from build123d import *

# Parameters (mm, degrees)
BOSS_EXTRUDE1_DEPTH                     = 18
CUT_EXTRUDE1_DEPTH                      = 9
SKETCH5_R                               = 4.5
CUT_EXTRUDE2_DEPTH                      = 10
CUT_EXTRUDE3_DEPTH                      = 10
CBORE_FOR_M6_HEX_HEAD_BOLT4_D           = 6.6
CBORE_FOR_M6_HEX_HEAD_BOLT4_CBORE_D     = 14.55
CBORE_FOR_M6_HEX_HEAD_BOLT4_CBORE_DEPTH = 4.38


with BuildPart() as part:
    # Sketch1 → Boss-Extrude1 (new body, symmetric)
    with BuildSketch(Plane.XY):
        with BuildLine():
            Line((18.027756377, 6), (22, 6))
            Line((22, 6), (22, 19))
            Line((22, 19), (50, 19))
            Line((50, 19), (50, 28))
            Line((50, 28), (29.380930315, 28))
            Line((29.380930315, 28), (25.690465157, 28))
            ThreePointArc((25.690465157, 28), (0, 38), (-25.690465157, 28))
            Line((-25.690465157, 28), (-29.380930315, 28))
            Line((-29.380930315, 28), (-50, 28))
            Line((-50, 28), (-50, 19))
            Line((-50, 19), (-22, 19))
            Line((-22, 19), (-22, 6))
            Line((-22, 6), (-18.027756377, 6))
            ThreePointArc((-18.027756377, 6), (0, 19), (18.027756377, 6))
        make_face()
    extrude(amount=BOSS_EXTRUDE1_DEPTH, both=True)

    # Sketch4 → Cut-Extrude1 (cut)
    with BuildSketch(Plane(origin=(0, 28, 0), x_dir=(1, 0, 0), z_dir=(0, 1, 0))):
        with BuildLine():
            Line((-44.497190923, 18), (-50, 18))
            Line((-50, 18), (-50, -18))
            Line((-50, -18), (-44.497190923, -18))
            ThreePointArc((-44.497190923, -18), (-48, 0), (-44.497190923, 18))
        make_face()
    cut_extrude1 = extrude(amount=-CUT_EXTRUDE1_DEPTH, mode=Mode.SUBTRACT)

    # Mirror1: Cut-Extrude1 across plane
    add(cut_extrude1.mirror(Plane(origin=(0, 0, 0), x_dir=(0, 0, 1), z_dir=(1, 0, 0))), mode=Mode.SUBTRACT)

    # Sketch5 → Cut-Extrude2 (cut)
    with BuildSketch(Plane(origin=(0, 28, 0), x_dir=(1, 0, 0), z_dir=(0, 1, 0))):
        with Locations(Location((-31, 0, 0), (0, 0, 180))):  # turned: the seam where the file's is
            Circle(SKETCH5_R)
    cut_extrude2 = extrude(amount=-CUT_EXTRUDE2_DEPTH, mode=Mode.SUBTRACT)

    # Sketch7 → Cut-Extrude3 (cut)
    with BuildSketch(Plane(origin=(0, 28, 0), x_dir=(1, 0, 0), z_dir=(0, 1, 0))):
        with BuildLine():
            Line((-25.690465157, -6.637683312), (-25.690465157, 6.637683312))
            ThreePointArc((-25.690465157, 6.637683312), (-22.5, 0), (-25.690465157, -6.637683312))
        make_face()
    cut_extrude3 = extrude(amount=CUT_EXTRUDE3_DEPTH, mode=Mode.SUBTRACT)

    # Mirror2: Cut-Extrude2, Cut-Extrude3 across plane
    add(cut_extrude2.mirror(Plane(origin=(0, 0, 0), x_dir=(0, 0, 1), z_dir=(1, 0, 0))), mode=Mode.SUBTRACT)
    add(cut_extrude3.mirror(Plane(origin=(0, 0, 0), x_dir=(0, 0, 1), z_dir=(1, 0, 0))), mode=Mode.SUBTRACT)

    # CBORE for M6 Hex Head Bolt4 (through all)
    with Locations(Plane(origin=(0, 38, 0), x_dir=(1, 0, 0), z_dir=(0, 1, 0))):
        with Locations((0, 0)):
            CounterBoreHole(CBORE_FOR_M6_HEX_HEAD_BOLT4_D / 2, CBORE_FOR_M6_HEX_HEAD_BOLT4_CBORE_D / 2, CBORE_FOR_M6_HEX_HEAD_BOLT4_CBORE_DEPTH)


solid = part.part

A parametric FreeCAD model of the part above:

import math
import FreeCAD as App
import Part
import Sketcher

V = App.Vector
Q = App.Units.Quantity

doc = App.newDocument("Part")
body = doc.addObject("PartDesign::Body", "Body")

sketch1 = body.newObject("Sketcher::SketchObject", "Sketch")
sketch1.AttachmentSupport = (doc.getObject("XY_Plane"), [""])
sketch1.MapMode = "FlatFace"
sketch1.addGeometry([
    Part.LineSegment(V(18, 6, 0), V(22, 6, 0)),
    Part.LineSegment(V(22, 6, 0), V(22, 19, 0)),
    Part.LineSegment(V(22, 19, 0), V(50, 19, 0)),
    Part.LineSegment(V(50, 19, 0), V(50, 28, 0)),
    Part.LineSegment(V(50, 28, 0), V(25.7, 28, 0)),
    Part.ArcOfCircle(Part.Circle(V(0, 0, 0), V(0, 0, 1), 38), math.radians(47), math.radians(133)),
    Part.LineSegment(V(-25.7, 28, 0), V(-50, 28, 0)),
    Part.LineSegment(V(-50, 28, 0), V(-50, 19, 0)),
    Part.LineSegment(V(-50, 19, 0), V(-22, 19, 0)),
    Part.LineSegment(V(-22, 19, 0), V(-22, 6, 0)),
    Part.LineSegment(V(-22, 6, 0), V(-18, 6, 0)),
    Part.ArcOfCircle(Part.Circle(V(0, 0, 0), V(0, 0, 1), 19), math.radians(18), math.radians(162)),
], False)
sketch1.addConstraint([
    Sketcher.Constraint("Coincident", 0, 2, 1, 1),
    Sketcher.Constraint("Coincident", 1, 2, 2, 1),
    Sketcher.Constraint("Coincident", 2, 2, 3, 1),
    Sketcher.Constraint("Coincident", 3, 2, 4, 1),
    Sketcher.Constraint("Coincident", 4, 2, 5, 1),
    Sketcher.Constraint("Coincident", 5, 2, 6, 1),
    Sketcher.Constraint("Coincident", 6, 2, 7, 1),
    Sketcher.Constraint("Coincident", 7, 2, 8, 1),
    Sketcher.Constraint("Coincident", 8, 2, 9, 1),
    Sketcher.Constraint("Coincident", 9, 2, 10, 1),
    Sketcher.Constraint("Coincident", 10, 2, 11, 2),
    Sketcher.Constraint("Coincident", 11, 1, 0, 1),
    Sketcher.Constraint("Horizontal", 0),
    Sketcher.Constraint("Vertical", 1),
    Sketcher.Constraint("Horizontal", 2),
    Sketcher.Constraint("Vertical", 3),
    Sketcher.Constraint("Horizontal", 4),
    Sketcher.Constraint("Horizontal", 6),
    Sketcher.Constraint("Vertical", 7),
    Sketcher.Constraint("Horizontal", 8),
    Sketcher.Constraint("Vertical", 9),
    Sketcher.Constraint("Horizontal", 10),
    Sketcher.Constraint("Coincident", 5, 3, -1, 1),
    Sketcher.Constraint("Coincident", 11, 3, -1, 1),
    Sketcher.Constraint("Symmetric", 3, 2, 6, 2, -2),
    Sketcher.Constraint("Symmetric", 1, 2, 8, 2, -2),
    Sketcher.Constraint("Horizontal", 0, 2, 9, 2),
    Sketcher.Constraint("Radius", 5, Q("38 mm")),
    Sketcher.Constraint("Radius", 11, Q("19 mm")),
    Sketcher.Constraint("DistanceX", 2, 1, 2, 2, Q("28 mm")),
    Sketcher.Constraint("DistanceY", 1, 1, 1, 2, Q("13 mm")),
    Sketcher.Constraint("DistanceY", 3, 1, 3, 2, Q("9 mm")),
    Sketcher.Constraint("DistanceX", -1, 1, 0, 2, Q("22 mm")),
    Sketcher.Constraint("DistanceY", -1, 1, 0, 2, Q("6 mm")),
])
pad1 = body.newObject("PartDesign::Pad", "Pad")
pad1.Profile = sketch1
pad1.Length = 36
pad1.Midplane = True

sketch2 = body.newObject("Sketcher::SketchObject", "Sketch001")
sketch2.AttachmentSupport = (doc.getObject("XZ_Plane"), [""])
sketch2.MapMode = "FlatFace"
sketch2.AttachmentOffset = App.Placement(V(0, 0, -28), App.Rotation())
sketch2.addGeometry([
    Part.LineSegment(V(-44, -18, 0), V(-50, -18, 0)),
    Part.LineSegment(V(-50, -18, 0), V(-50, 18, 0)),
    Part.LineSegment(V(-50, 18, 0), V(-44, 18, 0)),
    Part.ArcOfCircle(Part.Circle(V(0, 0, 0), V(0, 0, 1), 48), math.radians(158), math.radians(202)),
], False)
sketch2.addConstraint([
    Sketcher.Constraint("Coincident", 0, 2, 1, 1),
    Sketcher.Constraint("Coincident", 1, 2, 2, 1),
    Sketcher.Constraint("Coincident", 2, 2, 3, 1),
    Sketcher.Constraint("Coincident", 3, 2, 0, 1),
    Sketcher.Constraint("Horizontal", 0),
    Sketcher.Constraint("Vertical", 1),
    Sketcher.Constraint("Horizontal", 2),
    Sketcher.Constraint("Coincident", 3, 3, -1, 1),
    Sketcher.Constraint("Vertical", 2, 2, 3, 2),
    Sketcher.Constraint("Radius", 3, Q("48 mm")),
    Sketcher.Constraint("DistanceY", 1, 1, 1, 2, Q("36 mm")),
    Sketcher.Constraint("DistanceX", 0, 2, -1, 1, Q("50 mm")),
])
pocket1 = body.newObject("PartDesign::Pocket", "Pocket")
pocket1.Profile = sketch2
pocket1.Length = 9
pocket1.Reversed = True
doc.recompute()

mirrored = body.newObject("PartDesign::Mirrored", "Mirrored")
mirrored.Originals = [pocket1]
mirrored.MirrorPlane = (doc.getObject("YZ_Plane"), [""])
body.Tip = mirrored

sketch3 = body.newObject("Sketcher::SketchObject", "Sketch002")
sketch3.AttachmentSupport = (doc.getObject("XZ_Plane"), [""])
sketch3.MapMode = "FlatFace"
sketch3.AttachmentOffset = App.Placement(V(0, 0, -28), App.Rotation())
sketch3.addGeometry(Part.Circle(V(-31, 0, 0), V(0, 0, 1), 4.5), False)
sketch3.addConstraint([
    Sketcher.Constraint("PointOnObject", 0, 3, -1),
    Sketcher.Constraint("Diameter", 0, Q("9 mm")),
    Sketcher.Constraint("DistanceX", 0, 3, -1, 1, Q("31 mm")),
])
pocket2 = body.newObject("PartDesign::Pocket", "Pocket001")
pocket2.Profile = sketch3
pocket2.Length = 10
pocket2.Reversed = True

sketch4 = body.newObject("Sketcher::SketchObject", "Sketch003")
sketch4.AttachmentSupport = (doc.getObject("XZ_Plane"), [""])
sketch4.MapMode = "FlatFace"
sketch4.AttachmentOffset = App.Placement(V(0, 0, -28), App.Rotation())
sketch4.addGeometry([
    Part.LineSegment(V(-26, -7, 0), V(-26, 7, 0)),
    Part.ArcOfCircle(Part.Circle(V(-31, 0, 0), V(0, 0, 1), 8), math.radians(-51), math.radians(51)),
], False)
sketch4.addConstraint([
    Sketcher.Constraint("Coincident", 0, 1, 1, 1),
    Sketcher.Constraint("Coincident", 1, 2, 0, 2),
    Sketcher.Constraint("Vertical", 0),
    Sketcher.Constraint("PointOnObject", 1, 3, -1),
    Sketcher.Constraint("Radius", 1, Q("8.5 mm")),
    Sketcher.Constraint("DistanceX", 1, 3, -1, 1, Q("31 mm")),
    Sketcher.Constraint("DistanceY", 0, 1, 0, 2, Q("13.275367 mm")),
])
pocket3 = body.newObject("PartDesign::Pocket", "Pocket002")
pocket3.Profile = sketch4
pocket3.Length = 10
doc.recompute()

mirrored2 = body.newObject("PartDesign::Mirrored", "Mirrored001")
mirrored2.Originals = [pocket2, pocket3]
mirrored2.MirrorPlane = (doc.getObject("YZ_Plane"), [""])
body.Tip = mirrored2

sketch5 = body.newObject("Sketcher::SketchObject", "Sketch004")
sketch5.AttachmentSupport = (doc.getObject("XZ_Plane"), [""])
sketch5.MapMode = "FlatFace"
sketch5.AttachmentOffset = App.Placement(V(0, 0, -38), App.Rotation())
sketch5.addGeometry(Part.Circle(V(0, 0, 0), V(0, 0, 1), 3.3), False)
sketch5.addConstraint([
    Sketcher.Constraint("Coincident", 0, 3, -1, 1),
    Sketcher.Constraint("Diameter", 0, Q("6.6 mm")),
])
doc.recompute()
hole = body.newObject("PartDesign::Hole", "Hole")
hole.Profile = sketch5
hole.ThreadType = "None"
hole.Diameter = 6.6
hole.DepthType = "ThroughAll"
hole.HoleCutType = "Counterbore"
hole.HoleCutDiameter = 14.55
hole.HoleCutDepth = 4.38
hole.Reversed = True

doc.recompute()
